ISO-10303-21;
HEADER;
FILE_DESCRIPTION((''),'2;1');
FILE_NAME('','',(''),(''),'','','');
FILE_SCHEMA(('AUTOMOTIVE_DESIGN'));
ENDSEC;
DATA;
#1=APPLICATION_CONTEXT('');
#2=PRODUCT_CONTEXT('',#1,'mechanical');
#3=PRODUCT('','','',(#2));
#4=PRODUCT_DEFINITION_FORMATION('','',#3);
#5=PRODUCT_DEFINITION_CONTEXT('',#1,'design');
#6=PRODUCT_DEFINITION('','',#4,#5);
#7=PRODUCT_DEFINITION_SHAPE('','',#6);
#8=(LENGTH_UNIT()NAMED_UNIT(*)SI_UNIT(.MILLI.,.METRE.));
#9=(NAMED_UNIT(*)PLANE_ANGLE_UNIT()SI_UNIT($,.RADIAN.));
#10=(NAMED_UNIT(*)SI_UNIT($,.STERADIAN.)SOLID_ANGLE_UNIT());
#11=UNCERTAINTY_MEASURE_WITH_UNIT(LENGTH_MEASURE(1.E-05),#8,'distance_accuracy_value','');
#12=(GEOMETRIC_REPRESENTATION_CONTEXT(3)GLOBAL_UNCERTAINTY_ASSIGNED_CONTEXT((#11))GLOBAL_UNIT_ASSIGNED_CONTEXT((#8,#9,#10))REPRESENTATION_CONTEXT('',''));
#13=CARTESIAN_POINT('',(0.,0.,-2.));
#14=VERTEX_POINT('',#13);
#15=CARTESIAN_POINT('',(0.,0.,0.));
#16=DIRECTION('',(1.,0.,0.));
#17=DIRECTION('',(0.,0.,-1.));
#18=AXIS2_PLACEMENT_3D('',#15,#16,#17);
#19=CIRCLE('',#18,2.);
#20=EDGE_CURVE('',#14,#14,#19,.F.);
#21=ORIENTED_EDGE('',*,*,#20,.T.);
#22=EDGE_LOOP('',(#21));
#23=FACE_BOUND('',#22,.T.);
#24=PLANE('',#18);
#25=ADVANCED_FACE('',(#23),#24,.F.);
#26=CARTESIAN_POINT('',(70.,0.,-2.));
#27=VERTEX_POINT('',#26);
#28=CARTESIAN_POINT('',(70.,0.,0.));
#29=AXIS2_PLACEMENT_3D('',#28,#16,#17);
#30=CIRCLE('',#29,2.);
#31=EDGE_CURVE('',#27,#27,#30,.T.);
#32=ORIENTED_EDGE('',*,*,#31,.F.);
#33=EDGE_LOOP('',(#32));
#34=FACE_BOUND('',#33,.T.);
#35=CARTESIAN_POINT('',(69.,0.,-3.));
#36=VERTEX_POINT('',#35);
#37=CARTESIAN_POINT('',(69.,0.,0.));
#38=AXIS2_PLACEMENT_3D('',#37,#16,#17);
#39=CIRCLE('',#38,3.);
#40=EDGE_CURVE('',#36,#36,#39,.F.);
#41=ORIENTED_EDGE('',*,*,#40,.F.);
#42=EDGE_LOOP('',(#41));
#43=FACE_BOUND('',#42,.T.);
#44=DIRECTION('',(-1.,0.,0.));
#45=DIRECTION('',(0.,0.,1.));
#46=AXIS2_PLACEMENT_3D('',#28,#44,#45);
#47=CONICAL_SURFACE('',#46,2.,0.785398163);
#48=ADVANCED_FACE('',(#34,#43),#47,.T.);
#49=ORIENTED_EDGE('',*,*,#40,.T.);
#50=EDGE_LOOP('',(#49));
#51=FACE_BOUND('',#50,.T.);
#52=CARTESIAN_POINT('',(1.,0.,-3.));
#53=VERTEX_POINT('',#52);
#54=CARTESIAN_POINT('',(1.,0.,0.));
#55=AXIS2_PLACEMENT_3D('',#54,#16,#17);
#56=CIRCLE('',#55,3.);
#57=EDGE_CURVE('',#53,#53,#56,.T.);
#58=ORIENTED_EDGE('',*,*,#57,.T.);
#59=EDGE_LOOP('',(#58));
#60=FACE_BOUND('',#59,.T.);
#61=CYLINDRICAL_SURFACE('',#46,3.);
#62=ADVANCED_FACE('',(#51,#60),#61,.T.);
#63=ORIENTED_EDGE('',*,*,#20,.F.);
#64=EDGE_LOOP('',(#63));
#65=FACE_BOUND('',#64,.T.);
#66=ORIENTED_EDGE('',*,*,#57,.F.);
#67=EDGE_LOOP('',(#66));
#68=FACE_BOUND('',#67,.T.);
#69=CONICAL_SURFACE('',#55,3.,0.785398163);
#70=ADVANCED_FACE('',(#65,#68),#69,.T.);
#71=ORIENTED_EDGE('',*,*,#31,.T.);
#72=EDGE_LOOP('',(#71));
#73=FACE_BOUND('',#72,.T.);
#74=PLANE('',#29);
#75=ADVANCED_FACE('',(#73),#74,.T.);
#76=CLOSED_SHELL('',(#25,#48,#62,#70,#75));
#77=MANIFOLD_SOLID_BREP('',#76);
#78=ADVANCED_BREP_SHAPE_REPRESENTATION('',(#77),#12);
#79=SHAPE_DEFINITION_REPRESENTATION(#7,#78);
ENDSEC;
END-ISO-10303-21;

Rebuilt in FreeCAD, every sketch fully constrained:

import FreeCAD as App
import Part
import Sketcher
Q = App.Units.Quantity


def edges_at(feature, points):
    """Names of the edges that pass closest to the given points."""
    edges = feature.Shape.Edges
    near = lambda p: min(range(len(edges)), key=lambda i: edges[i].distToShape(Part.Vertex(*p))[0])
    return sorted({f"Edge{near(p) + 1}" for p in points})

doc = App.newDocument("Part")
body = doc.addObject("PartDesign::Body", "Body")

sketch1 = doc.addObject("Sketcher::SketchObject", "Sketch")
body.addObject(sketch1)
sketch1.AttachmentSupport = (doc.YZ_Plane, [""])
sketch1.MapMode = "FlatFace"
sketch1.addGeometry(Part.Circle(App.Vector(0, 0, 0), App.Vector(0, 0, 1), 3), False)
sketch1.addConstraint(Sketcher.Constraint("Coincident", 0, 3, -1, 1))
sketch1.addConstraint(Sketcher.Constraint("Diameter", 0, Q("6 mm")))
pad1 = doc.addObject("PartDesign::Pad", "Pad")
body.addObject(pad1)
pad1.Profile = sketch1
pad1.Length = 70
doc.recompute()

chamfer = doc.addObject("PartDesign::Chamfer", "Chamfer")
body.addObject(chamfer)
chamfer.Base = (pad1, edges_at(pad1, [(0, 0, 3), (70, 0, 3)]))
chamfer.Size = 1

doc.recompute()
